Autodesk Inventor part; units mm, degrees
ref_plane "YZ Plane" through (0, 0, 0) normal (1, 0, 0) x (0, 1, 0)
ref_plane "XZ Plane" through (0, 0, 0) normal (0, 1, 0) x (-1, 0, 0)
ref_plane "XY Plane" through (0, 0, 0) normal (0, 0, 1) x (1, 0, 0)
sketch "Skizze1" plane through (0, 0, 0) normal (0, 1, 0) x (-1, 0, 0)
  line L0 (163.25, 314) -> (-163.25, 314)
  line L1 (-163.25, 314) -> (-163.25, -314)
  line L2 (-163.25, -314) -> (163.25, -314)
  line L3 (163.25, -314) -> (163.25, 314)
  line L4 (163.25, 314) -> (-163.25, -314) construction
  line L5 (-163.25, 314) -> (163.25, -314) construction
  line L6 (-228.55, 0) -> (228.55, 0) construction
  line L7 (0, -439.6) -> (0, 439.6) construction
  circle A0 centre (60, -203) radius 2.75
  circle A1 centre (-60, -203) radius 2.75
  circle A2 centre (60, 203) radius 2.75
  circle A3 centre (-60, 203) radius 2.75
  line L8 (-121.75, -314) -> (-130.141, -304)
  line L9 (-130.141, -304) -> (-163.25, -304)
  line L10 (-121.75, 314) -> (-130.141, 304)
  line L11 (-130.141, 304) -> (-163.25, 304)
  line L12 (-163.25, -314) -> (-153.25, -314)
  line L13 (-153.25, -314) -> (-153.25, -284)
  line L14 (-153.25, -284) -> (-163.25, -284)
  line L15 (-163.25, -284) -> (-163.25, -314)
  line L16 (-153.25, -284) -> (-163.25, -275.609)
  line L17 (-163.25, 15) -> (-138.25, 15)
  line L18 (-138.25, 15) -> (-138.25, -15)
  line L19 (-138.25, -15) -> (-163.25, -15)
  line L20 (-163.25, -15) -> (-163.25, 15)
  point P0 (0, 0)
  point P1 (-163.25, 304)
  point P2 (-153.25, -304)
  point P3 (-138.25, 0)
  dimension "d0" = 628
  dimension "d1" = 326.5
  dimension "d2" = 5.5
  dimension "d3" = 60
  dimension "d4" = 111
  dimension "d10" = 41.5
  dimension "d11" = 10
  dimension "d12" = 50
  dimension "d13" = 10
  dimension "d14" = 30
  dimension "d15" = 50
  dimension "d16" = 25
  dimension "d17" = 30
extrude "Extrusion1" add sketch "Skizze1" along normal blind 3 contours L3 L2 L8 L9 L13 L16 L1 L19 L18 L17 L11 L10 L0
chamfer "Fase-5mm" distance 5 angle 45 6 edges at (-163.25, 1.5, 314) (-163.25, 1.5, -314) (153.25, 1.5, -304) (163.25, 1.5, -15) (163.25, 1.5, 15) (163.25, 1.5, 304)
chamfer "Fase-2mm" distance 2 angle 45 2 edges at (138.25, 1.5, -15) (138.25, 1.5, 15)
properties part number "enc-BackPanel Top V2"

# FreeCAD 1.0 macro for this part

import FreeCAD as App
import Part
import Sketcher
from FreeCAD import Vector
Q = App.Units.Quantity


def edges_at(feature, points):
    """Names of the edges that pass closest to the given points."""
    edges = feature.Shape.Edges
    near = lambda p: min(range(len(edges)), key=lambda i: edges[i].distToShape(Part.Vertex(*p))[0])
    return sorted({f"Edge{near(p) + 1}" for p in points})


def add_polygon(sketch, points):
    """Adds a closed chain of lines whose ends are joined by coincident constraints."""
    first, n = sketch.GeometryCount, len(points)
    for a, b in zip(points, points[1:] + points[:1]):
        sketch.addGeometry(Part.LineSegment(App.Vector(*a, 0), App.Vector(*b, 0)), False)
    for i in range(n):
        sketch.addConstraint(Sketcher.Constraint("Coincident", first + i, 2, first + (i + 1) % n, 1))

doc = App.newDocument("Part")
body = doc.addObject("PartDesign::Body", "Body")

# Sketch on XZ plane
sketch1 = body.newObject("Sketcher::SketchObject", "Sketch")
sketch1.AttachmentSupport = (doc.getObject("XZ_Plane"), [""])
sketch1.MapMode = "FlatFace"
add_polygon(sketch1, [(-163.2, -314), (-163.2, 314), (121.8, 314), (130.1, 304), (163.2, 304), (163.2, 15), (138.2, 15), (138.2, -15), (163.2, -15), (163.2, -275.6), (153.2, -284), (153.2, -304), (130.1, -304), (121.8, -314)])  # lines 0-13
sketch1.addGeometry(Part.Circle(Vector(60, -203, 0), Vector(0, 0, 1), 2.8), False)  # 14
sketch1.addGeometry(Part.Circle(Vector(-60, -203, 0), Vector(0, 0, 1), 2.8), False)  # 15
sketch1.addGeometry(Part.Circle(Vector(60, 203, 0), Vector(0, 0, 1), 2.8), False)  # 16
sketch1.addGeometry(Part.Circle(Vector(-60, 203, 0), Vector(0, 0, 1), 2.8), False)  # 17
sketch1.addConstraint(Sketcher.Constraint("Vertical", 0))
sketch1.addConstraint(Sketcher.Constraint("Horizontal", 1))
sketch1.addConstraint(Sketcher.Constraint("Horizontal", 3))
sketch1.addConstraint(Sketcher.Constraint("Vertical", 4))
sketch1.addConstraint(Sketcher.Constraint("Horizontal", 5))
sketch1.addConstraint(Sketcher.Constraint("Vertical", 6))
sketch1.addConstraint(Sketcher.Constraint("Horizontal", 7))
sketch1.addConstraint(Sketcher.Constraint("Vertical", 8))
sketch1.addConstraint(Sketcher.Constraint("Vertical", 10))
sketch1.addConstraint(Sketcher.Constraint("Horizontal", 11))
sketch1.addConstraint(Sketcher.Constraint("Horizontal", 13))
sketch1.addConstraint(Sketcher.Constraint("Equal", 14, 15))
sketch1.addConstraint(Sketcher.Constraint("Equal", 15, 16))
sketch1.addConstraint(Sketcher.Constraint("Equal", 16, 17))
sketch1.addConstraint(Sketcher.Constraint("Symmetric", 15, 3, 16, 3, -1, 1))
sketch1.addConstraint(Sketcher.Constraint("Symmetric", 14, 3, 17, 3, -1, 1))
sketch1.addConstraint(Sketcher.Constraint("Symmetric", 14, 3, 15, 3, -2))
sketch1.addConstraint(Sketcher.Constraint("Symmetric", 4, 2, 7, 2, -1))
sketch1.addConstraint(Sketcher.Constraint("Symmetric", 2, 2, 11, 2, -1))
sketch1.addConstraint(Sketcher.Constraint("Symmetric", 1, 2, 12, 2, -1))
sketch1.addConstraint(Sketcher.Constraint("Perpendicular", 2, 9))
sketch1.addConstraint(Sketcher.Constraint("Equal", 2, 9))
sketch1.addConstraint(Sketcher.Constraint("Diameter", 14, 5.5))
sketch1.addConstraint(Sketcher.Constraint("DistanceX", 5, 2, 5, 1, 25.0))
sketch1.addConstraint(Sketcher.Constraint("DistanceY", 0, 1, 0, 2, 628.0))
sketch1.addConstraint(Sketcher.Constraint("DistanceY", 6, 2, 6, 1, 30.0))
sketch1.addConstraint(Sketcher.Constraint("Angle", 2, Q("-50 deg")))
sketch1.addConstraint(Sketcher.Constraint("DistanceX", -1, 1, 14, 3, 60.0))
sketch1.addConstraint(Sketcher.Constraint("DistanceY", 17, 3, 0, 2, 111.0))
sketch1.addConstraint(Sketcher.Constraint("DistanceY", 2, 2, 1, 2, 10.0))
sketch1.addConstraint(Sketcher.Constraint("DistanceY", 12, 2, 9, 2, 30.0))
sketch1.addConstraint(Sketcher.Constraint("DistanceX", 1, 2, 3, 2, 41.5))
sketch1.addConstraint(Sketcher.Constraint("DistanceX", 0, 2, 3, 2, 326.5))
sketch1.addConstraint(Sketcher.Constraint("DistanceX", 0, 2, -1, 1, 163.25))
pad1 = body.newObject("PartDesign::Pad", "Pad")
pad1.Profile = sketch1
pad1.Length = 3
pad1.Reversed = True
doc.recompute()

chamfer = body.newObject("PartDesign::Chamfer", "Chamfer")
chamfer.Base = (pad1, edges_at(pad1, [
    (-163.25, 1.5, 314),
    (-163.25, 1.5, -314),
    (153.25, 1.5, -304),
    (163.25, 1.5, -15),
    (163.25, 1.5, 15),
    (163.25, 1.5, 304),
]))
chamfer.Size = 5
doc.recompute()

chamfer2 = body.newObject("PartDesign::Chamfer", "Chamfer001")
chamfer2.Base = (chamfer, edges_at(chamfer, [(138.25, 1.5, -15), (138.25, 1.5, 15)]))
chamfer2.Size = 2

doc.recompute()
